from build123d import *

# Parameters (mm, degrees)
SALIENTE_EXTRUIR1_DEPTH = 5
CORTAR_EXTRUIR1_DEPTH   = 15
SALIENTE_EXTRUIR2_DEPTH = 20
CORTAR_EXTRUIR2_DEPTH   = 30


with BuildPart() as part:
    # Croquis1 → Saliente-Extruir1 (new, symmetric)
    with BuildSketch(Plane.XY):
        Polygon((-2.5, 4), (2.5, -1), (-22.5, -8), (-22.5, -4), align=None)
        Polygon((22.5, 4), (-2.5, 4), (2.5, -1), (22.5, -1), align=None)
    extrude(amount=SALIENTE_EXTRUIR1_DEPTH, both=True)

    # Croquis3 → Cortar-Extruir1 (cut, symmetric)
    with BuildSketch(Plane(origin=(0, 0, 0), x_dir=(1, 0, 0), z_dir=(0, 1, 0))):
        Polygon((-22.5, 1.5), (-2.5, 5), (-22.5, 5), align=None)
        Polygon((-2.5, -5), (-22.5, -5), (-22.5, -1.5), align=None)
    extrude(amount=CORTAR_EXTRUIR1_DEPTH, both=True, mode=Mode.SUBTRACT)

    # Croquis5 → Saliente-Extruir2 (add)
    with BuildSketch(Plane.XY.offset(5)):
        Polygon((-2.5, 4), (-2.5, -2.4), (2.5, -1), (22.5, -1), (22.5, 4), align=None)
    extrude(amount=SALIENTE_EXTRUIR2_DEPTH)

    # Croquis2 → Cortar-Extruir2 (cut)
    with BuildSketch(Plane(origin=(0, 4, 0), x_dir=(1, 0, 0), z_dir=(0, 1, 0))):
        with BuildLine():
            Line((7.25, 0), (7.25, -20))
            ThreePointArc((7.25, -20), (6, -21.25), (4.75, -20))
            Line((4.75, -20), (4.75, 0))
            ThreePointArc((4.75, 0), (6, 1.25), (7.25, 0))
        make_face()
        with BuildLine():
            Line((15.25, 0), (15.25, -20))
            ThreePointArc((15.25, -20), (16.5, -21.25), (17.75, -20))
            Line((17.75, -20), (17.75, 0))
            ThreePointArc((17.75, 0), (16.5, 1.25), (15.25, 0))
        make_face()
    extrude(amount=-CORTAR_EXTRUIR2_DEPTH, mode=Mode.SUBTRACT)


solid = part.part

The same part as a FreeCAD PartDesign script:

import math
import FreeCAD as App
import Part
import Sketcher
Q = App.Units.Quantity


def add_polygon(sketch, points):
    """Adds a closed chain of lines whose ends are joined by coincident constraints."""
    first, n = sketch.GeometryCount, len(points)
    for a, b in zip(points, points[1:] + points[:1]):
        sketch.addGeometry(Part.LineSegment(App.Vector(*a, 0), App.Vector(*b, 0)), False)
    for i in range(n):
        sketch.addConstraint(Sketcher.Constraint("Coincident", first + i, 2, first + (i + 1) % n, 1))

doc = App.newDocument("Part")
body = doc.addObject("PartDesign::Body", "Body")

sketch1 = body.newObject("Sketcher::SketchObject", "Sketch")
sketch1.AttachmentSupport = (doc.getObject("XY_Plane"), [""])
sketch1.MapMode = "FlatFace"
add_polygon(sketch1, [(-22.5, -8), (2.5, -1), (22.5, -1), (22.5, 4), (-2.5, 4), (-22.5, -4)])
sketch1.addConstraint([
    Sketcher.Constraint("Horizontal", 1),
    Sketcher.Constraint("Vertical", 2),
    Sketcher.Constraint("Horizontal", 3),
    Sketcher.Constraint("Vertical", 5),
    Sketcher.Constraint("Symmetric", 2, 2, 4, 2, -1, 1),
    Sketcher.Constraint("DistanceX", 1, 1, 1, 2, Q("20 mm")),
    Sketcher.Constraint("DistanceX", 3, 2, 3, 1, Q("25 mm")),
    Sketcher.Constraint("DistanceY", 2, 1, 2, 2, Q("5 mm")),
    Sketcher.Constraint("DistanceY", 5, 2, 5, 1, Q("4 mm")),
    Sketcher.Constraint("DistanceY", 0, 2, -1, 1, Q("1 mm")),
    Sketcher.Constraint("DistanceX", 4, 2, 3, 2, Q("20 mm")),
])
pad1 = body.newObject("PartDesign::Pad", "Pad")
pad1.Profile = sketch1
pad1.Length = 10
pad1.Midplane = True

sketch2 = body.newObject("Sketcher::SketchObject", "Sketch001")
sketch2.AttachmentSupport = (doc.getObject("XZ_Plane"), [""])
sketch2.MapMode = "FlatFace"
add_polygon(sketch2, [(-22.5, -1.5), (-2.5, -5), (-22.5, -5)])
add_polygon(sketch2, [(-22.5, 5), (-2.5, 5), (-22.5, 1.5)])
sketch2.addConstraint([
    Sketcher.Constraint("Horizontal", 1),
    Sketcher.Constraint("Vertical", 2),
    Sketcher.Constraint("Horizontal", 3),
    Sketcher.Constraint("Vertical", 5),
    Sketcher.Constraint("Symmetric", 0, 2, 3, 2, -1),
    Sketcher.Constraint("Symmetric", 2, 2, 4, 2, -1),
    Sketcher.Constraint("DistanceX", 1, 2, 1, 1, Q("20 mm")),
    Sketcher.Constraint("DistanceY", 2, 1, 2, 2, Q("3.5 mm")),
    Sketcher.Constraint("DistanceY", 0, 2, -1, 1, Q("5 mm")),
    Sketcher.Constraint("DistanceX", 0, 2, -1, 1, Q("2.5 mm")),
])
pocket1 = body.newObject("PartDesign::Pocket", "Pocket")
pocket1.Profile = sketch2
pocket1.Length = 30
pocket1.Midplane = True

sketch3 = body.newObject("Sketcher::SketchObject", "Sketch002")
sketch3.AttachmentSupport = (doc.getObject("XY_Plane"), [""])
sketch3.MapMode = "FlatFace"
sketch3.AttachmentOffset = App.Placement(App.Vector(0, 0, 5), App.Rotation())
add_polygon(sketch3, [(-2, 4), (-2, -2), (2, -1), (22, -1), (22, 4)])
sketch3.addConstraint([
    Sketcher.Constraint("Vertical", 0),
    Sketcher.Constraint("Horizontal", 2),
    Sketcher.Constraint("Vertical", 3),
    Sketcher.Constraint("Horizontal", 4),
    Sketcher.Constraint("DistanceX", 2, 1, 2, 2, Q("20 mm")),
    Sketcher.Constraint("DistanceX", 4, 2, 4, 1, Q("25 mm")),
    Sketcher.Constraint("DistanceY", 3, 1, 3, 2, Q("5 mm")),
    Sketcher.Constraint("DistanceY", 0, 2, 0, 1, Q("6.4 mm")),
    Sketcher.Constraint("DistanceY", 1, 2, -1, 1, Q("1 mm")),
    Sketcher.Constraint("DistanceX", 0, 2, -1, 1, Q("2.5 mm")),
])
pad2 = body.newObject("PartDesign::Pad", "Pad001")
pad2.Profile = sketch3
pad2.Length = 20

sketch4 = body.newObject("Sketcher::SketchObject", "Sketch003")
sketch4.AttachmentSupport = (doc.getObject("XZ_Plane"), [""])
sketch4.MapMode = "FlatFace"
sketch4.AttachmentOffset = App.Placement(App.Vector(0, 0, -4), App.Rotation())
sketch4.addGeometry([
    Part.LineSegment(App.Vector(7.2, 20, 0), App.Vector(7.2, 0, 0)),
    Part.ArcOfCircle(Part.Circle(App.Vector(6, 0, 0), App.Vector(0, 0, 1), 1.2), math.radians(180), math.radians(360)),
    Part.LineSegment(App.Vector(4.8, 0, 0), App.Vector(4.8, 20, 0)),
    Part.ArcOfCircle(Part.Circle(App.Vector(6, 20, 0), App.Vector(0, 0, 1), 1.2), math.radians(0), math.radians(180)),
    Part.LineSegment(App.Vector(15.2, 0, 0), App.Vector(15.2, 20, 0)),
    Part.ArcOfCircle(Part.Circle(App.Vector(16.5, 20, 0), App.Vector(0, 0, 1), 1.2), math.radians(0), math.radians(180)),
    Part.LineSegment(App.Vector(17.8, 20, 0), App.Vector(17.8, 0, 0)),
    Part.ArcOfCircle(Part.Circle(App.Vector(16.5, 0, 0), App.Vector(0, 0, 1), 1.2), math.radians(180), math.radians(360)),
], False)
sketch4.addConstraint([
    Sketcher.Constraint("Tangent", 0, 2, 1, 2),
    Sketcher.Constraint("Tangent", 1, 1, 2, 1),
    Sketcher.Constraint("Tangent", 2, 2, 3, 2),
    Sketcher.Constraint("Tangent", 3, 1, 0, 1),
    Sketcher.Constraint("Tangent", 4, 2, 5, 2),
    Sketcher.Constraint("Tangent", 5, 1, 6, 1),
    Sketcher.Constraint("Tangent", 6, 2, 7, 2),
    Sketcher.Constraint("Tangent", 7, 1, 4, 1),
    Sketcher.Constraint("Vertical", 0),
    Sketcher.Constraint("Vertical", 2),
    Sketcher.Constraint("Vertical", 4),
    Sketcher.Constraint("Vertical", 6),
    Sketcher.Constraint("Equal", 3, 5),
    Sketcher.Constraint("PointOnObject", 1, 3, -1),
    Sketcher.Constraint("PointOnObject", 7, 3, -1),
    Sketcher.Constraint("Horizontal", 3, 3, 5, 3),
    Sketcher.Constraint("DistanceY", 0, 2, 0, 1, Q("20 mm")),
    Sketcher.Constraint("Radius", 1, Q("1.25 mm")),
    Sketcher.Constraint("DistanceX", -1, 1, 1, 3, Q("6 mm")),
    Sketcher.Constraint("DistanceX", 3, 1, 4, 2, Q("8 mm")),
])
pocket2 = body.newObject("PartDesign::Pocket", "Pocket001")
pocket2.Profile = sketch4
pocket2.Length = 30
pocket2.Reversed = True

doc.recompute()
